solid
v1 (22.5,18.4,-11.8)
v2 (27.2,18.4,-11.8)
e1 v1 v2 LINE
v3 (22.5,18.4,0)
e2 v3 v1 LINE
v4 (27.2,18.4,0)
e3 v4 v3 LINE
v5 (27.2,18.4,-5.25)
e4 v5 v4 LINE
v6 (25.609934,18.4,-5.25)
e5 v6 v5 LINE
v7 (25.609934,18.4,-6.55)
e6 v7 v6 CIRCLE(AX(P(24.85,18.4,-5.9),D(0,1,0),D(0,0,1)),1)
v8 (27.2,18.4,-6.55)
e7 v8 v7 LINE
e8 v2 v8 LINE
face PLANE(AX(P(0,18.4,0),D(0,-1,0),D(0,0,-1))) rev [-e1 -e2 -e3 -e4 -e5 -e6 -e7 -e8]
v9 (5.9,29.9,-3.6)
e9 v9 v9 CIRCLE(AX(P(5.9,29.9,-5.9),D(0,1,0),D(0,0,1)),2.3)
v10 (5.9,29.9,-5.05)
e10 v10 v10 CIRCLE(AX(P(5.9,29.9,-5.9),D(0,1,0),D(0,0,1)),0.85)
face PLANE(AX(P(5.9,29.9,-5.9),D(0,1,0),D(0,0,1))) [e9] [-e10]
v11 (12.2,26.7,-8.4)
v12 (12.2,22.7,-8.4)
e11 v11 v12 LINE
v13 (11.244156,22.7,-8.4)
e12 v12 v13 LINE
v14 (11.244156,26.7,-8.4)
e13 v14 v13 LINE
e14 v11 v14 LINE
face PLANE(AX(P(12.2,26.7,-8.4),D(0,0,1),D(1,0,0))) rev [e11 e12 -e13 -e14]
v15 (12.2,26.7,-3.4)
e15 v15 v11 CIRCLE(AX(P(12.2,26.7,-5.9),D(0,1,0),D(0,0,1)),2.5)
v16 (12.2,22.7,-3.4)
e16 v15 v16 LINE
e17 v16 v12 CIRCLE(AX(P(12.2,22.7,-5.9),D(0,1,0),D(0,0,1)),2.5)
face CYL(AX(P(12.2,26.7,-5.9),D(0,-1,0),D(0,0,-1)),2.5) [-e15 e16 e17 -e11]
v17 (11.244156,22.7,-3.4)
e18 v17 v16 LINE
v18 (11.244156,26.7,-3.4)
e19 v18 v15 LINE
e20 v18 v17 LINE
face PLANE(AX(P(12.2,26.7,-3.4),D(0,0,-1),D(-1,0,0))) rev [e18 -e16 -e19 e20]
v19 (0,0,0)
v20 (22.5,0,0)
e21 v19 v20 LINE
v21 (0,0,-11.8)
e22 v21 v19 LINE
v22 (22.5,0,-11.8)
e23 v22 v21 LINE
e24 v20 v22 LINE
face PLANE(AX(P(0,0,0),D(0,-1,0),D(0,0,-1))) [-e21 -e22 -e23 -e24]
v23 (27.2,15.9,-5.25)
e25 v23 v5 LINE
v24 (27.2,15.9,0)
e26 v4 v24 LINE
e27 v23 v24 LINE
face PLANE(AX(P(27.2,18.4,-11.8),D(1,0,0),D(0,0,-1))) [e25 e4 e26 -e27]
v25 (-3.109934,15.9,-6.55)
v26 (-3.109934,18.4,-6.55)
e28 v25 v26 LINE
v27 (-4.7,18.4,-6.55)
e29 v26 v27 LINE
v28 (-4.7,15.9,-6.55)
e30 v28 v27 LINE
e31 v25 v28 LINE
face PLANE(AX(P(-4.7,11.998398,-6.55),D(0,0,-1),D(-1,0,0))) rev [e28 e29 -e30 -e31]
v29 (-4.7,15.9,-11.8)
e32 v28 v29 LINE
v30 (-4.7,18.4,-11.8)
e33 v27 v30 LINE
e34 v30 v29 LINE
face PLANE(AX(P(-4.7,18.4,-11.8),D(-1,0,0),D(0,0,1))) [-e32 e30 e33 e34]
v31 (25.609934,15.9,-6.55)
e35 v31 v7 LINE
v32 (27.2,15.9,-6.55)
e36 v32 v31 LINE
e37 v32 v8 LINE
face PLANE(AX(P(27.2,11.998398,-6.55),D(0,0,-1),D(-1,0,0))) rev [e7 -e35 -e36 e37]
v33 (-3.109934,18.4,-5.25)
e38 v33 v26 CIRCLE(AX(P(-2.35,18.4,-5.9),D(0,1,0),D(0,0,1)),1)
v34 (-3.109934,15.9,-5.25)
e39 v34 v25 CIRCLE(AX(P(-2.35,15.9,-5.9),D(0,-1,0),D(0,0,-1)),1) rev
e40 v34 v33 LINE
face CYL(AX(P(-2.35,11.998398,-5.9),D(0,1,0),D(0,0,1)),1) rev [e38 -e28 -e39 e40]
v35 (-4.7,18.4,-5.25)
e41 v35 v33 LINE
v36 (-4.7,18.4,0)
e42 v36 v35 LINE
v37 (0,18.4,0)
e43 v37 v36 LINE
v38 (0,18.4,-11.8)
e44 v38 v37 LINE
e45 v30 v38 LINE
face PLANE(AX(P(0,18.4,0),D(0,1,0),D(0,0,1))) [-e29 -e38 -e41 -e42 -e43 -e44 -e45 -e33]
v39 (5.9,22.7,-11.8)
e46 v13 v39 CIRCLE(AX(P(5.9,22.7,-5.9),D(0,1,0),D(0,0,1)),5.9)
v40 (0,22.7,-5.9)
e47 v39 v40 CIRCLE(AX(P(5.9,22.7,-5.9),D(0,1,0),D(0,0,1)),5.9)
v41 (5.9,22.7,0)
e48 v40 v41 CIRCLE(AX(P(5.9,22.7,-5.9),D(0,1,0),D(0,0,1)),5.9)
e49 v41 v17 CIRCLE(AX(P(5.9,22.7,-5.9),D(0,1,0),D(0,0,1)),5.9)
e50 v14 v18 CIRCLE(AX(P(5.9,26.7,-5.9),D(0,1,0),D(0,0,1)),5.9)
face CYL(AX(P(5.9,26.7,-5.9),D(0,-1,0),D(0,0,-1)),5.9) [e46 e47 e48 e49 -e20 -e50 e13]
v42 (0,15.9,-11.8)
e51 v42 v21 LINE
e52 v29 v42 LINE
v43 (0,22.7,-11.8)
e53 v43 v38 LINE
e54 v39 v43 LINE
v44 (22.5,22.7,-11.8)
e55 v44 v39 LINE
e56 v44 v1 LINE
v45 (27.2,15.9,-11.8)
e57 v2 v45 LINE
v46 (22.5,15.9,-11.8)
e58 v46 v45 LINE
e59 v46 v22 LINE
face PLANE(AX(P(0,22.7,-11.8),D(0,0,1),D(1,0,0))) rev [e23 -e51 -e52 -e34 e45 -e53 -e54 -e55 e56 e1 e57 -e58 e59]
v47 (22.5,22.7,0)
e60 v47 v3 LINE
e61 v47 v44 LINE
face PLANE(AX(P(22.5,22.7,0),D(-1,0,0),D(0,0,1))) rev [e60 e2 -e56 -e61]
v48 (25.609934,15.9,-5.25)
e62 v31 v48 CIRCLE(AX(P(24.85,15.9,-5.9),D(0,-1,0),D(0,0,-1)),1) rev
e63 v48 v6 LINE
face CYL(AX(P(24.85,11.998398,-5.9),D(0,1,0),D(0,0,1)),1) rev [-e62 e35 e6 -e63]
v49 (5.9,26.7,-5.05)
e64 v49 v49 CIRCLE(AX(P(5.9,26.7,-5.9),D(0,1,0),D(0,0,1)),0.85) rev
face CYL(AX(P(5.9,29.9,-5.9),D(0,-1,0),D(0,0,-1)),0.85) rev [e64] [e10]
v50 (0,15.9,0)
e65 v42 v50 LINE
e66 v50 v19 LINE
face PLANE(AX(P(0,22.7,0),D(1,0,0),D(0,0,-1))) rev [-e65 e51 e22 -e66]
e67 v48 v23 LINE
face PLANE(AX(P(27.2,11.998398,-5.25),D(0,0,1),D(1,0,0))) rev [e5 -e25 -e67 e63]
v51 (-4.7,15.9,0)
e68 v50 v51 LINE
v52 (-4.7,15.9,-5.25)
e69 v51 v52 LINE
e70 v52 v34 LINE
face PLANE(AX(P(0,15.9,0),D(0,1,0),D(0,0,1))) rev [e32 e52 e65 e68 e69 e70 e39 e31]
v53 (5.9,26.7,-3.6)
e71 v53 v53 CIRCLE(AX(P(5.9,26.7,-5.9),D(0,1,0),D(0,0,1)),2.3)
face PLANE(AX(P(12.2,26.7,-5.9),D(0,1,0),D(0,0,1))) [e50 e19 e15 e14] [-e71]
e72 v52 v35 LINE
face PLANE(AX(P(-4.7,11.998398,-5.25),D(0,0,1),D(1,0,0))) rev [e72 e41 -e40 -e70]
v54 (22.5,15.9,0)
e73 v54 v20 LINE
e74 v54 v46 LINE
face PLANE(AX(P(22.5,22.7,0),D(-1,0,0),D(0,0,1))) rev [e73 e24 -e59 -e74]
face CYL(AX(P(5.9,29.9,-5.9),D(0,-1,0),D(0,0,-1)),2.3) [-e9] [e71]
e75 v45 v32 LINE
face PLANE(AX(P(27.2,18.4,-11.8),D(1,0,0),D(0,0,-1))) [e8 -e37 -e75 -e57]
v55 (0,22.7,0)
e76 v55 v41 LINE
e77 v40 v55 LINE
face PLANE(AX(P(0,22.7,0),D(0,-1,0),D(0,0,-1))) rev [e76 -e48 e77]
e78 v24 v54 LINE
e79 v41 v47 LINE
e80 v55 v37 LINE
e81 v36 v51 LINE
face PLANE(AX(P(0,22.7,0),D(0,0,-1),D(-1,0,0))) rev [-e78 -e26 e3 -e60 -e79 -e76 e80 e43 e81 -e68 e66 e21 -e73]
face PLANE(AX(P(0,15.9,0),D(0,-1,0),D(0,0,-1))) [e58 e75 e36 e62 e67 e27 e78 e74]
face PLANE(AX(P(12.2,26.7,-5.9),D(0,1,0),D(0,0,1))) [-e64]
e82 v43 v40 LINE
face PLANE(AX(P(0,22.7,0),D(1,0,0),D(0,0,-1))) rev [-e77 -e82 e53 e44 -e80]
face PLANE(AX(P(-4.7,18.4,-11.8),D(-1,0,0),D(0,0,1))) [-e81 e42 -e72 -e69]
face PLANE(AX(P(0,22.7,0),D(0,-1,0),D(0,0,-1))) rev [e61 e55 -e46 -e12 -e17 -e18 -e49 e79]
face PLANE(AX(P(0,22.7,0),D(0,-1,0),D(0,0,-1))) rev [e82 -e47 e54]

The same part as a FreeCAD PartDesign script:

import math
import FreeCAD as App
import Part
import Sketcher
from FreeCAD import Vector
Q = App.Units.Quantity


def add_polygon(sketch, points):
    """Adds a closed chain of lines whose ends are joined by coincident constraints."""
    first, n = sketch.GeometryCount, len(points)
    for a, b in zip(points, points[1:] + points[:1]):
        sketch.addGeometry(Part.LineSegment(App.Vector(*a, 0), App.Vector(*b, 0)), False)
    for i in range(n):
        sketch.addConstraint(Sketcher.Constraint("Coincident", first + i, 2, first + (i + 1) % n, 1))

doc = App.newDocument("Part")
params = doc.addObject("Spreadsheet::Sheet", "Params")
for row, (alias, value) in enumerate([
    ("sketch1_width", "22.5 mm"),
    ("sketch1_height", "11.8 mm"),
    ("pad1_length", "22.7 mm"),
    ("sketch2_width", "4.7 mm"),
    ("sketch2_height", "11.8 mm"),
    ("pad2_length", "2.5 mm"),
    ("sketch3_radius", "5.9 mm"),
    ("sketch3_radius2", "2.5 mm"),
    ("pad3_length", "4 mm"),
    ("sketch4_radius", "1 mm"),
    ("sketch4_height", "1.3 mm"),
    ("pocket1_length", "2.5 mm"),
    ("sketch5_diameter", "4.6 mm"),
    ("sketch5_diameter2", "1.7 mm"),
    ("pad4_length", "3.2 mm"),
], start=1):
    params.set(f"A{row}", alias)
    params.set(f"B{row}", "=" + value)
    params.setAlias(f"B{row}", alias)

body = doc.addObject("PartDesign::Body", "Body")

# Sketch on XZ plane
sketch1 = body.newObject("Sketcher::SketchObject", "Sketch")
sketch1.AttachmentSupport = (doc.getObject("XZ_Plane"), [""])
sketch1.MapMode = "FlatFace"
add_polygon(sketch1, [(0, -12), (0, 0), (22, 0), (22, -12)])  # lines 0-3
sketch1.addConstraint(Sketcher.Constraint("Vertical", 0))
sketch1.addConstraint(Sketcher.Constraint("Horizontal", 1))
sketch1.addConstraint(Sketcher.Constraint("Vertical", 2))
sketch1.addConstraint(Sketcher.Constraint("Horizontal", 3))
sketch1.addConstraint(Sketcher.Constraint("Coincident", 0, 2, -1, 1))
sketch1.addConstraint(Sketcher.Constraint("DistanceX", 1, 1, 1, 2, Q("22.5 mm")))
sketch1.addConstraint(Sketcher.Constraint("DistanceY", 0, 1, 0, 2, Q("11.8 mm")))
sketch1.setExpression("Constraints[9]", "Params.sketch1_width")
sketch1.setExpression("Constraints[10]", "Params.sketch1_height")
pad1 = body.newObject("PartDesign::Pad", "Pad")
pad1.Profile = sketch1
pad1.setExpression("Length", "Params.pad1_length")
pad1.Reversed = True

# Sketch on XZ plane
sketch2 = body.newObject("Sketcher::SketchObject", "Sketch001")
sketch2.AttachmentSupport = (doc.getObject("XZ_Plane"), [""])
sketch2.MapMode = "FlatFace"
sketch2.AttachmentOffset = App.Placement(Vector(0, 0, -15.9), App.Rotation())
add_polygon(sketch2, [(27.2, -11.8), (27.2, 0), (22.5, 0), (22.5, -11.8)])  # lines 0-3
add_polygon(sketch2, [(0, -11.8), (0, 0), (-4.7, 0), (-4.7, -11.8)])  # lines 4-7
sketch2.addConstraint(Sketcher.Constraint("Vertical", 0))
sketch2.addConstraint(Sketcher.Constraint("Horizontal", 1))
sketch2.addConstraint(Sketcher.Constraint("Vertical", 2))
sketch2.addConstraint(Sketcher.Constraint("Horizontal", 3))
sketch2.addConstraint(Sketcher.Constraint("Vertical", 4))
sketch2.addConstraint(Sketcher.Constraint("Horizontal", 5))
sketch2.addConstraint(Sketcher.Constraint("Vertical", 6))
sketch2.addConstraint(Sketcher.Constraint("Horizontal", 7))
sketch2.addConstraint(Sketcher.Constraint("Coincident", 4, 2, -1, 1))
sketch2.addConstraint(Sketcher.Constraint("PointOnObject", 0, 2, -1))
sketch2.addConstraint(Sketcher.Constraint("Horizontal", 3, 2, 6, 2))
sketch2.addConstraint(Sketcher.Constraint("Equal", 3, 5))
sketch2.addConstraint(Sketcher.Constraint("DistanceX", 1, 2, 1, 1, Q("4.7 mm")))
sketch2.addConstraint(Sketcher.Constraint("DistanceY", 0, 1, 0, 2, Q("11.8 mm")))
sketch2.addConstraint(Sketcher.Constraint("DistanceX", -1, 1, 0, 2, Q("27.2 mm")))
sketch2.setExpression("Constraints[20]", "Params.sketch2_width")
sketch2.setExpression("Constraints[21]", "Params.sketch2_height")
pad2 = body.newObject("PartDesign::Pad", "Pad001")
pad2.Profile = sketch2
pad2.setExpression("Length", "Params.pad2_length")
pad2.Reversed = True

# Sketch on XZ plane
sketch3 = body.newObject("Sketcher::SketchObject", "Sketch002")
sketch3.AttachmentSupport = (doc.getObject("XZ_Plane"), [""])
sketch3.MapMode = "FlatFace"
sketch3.AttachmentOffset = App.Placement(Vector(0, 0, -22.7), App.Rotation())
sketch3.addGeometry(Part.LineSegment(Vector(12.2, -8.4, 0), Vector(11.2, -8.4, 0)), False)
sketch3.addGeometry(Part.ArcOfCircle(Part.Circle(Vector(5.9, -5.9, 0), Vector(0, 0, 1), 5.9), math.radians(25), math.radians(335)), False)
sketch3.addGeometry(Part.LineSegment(Vector(11.2, -3.4, 0), Vector(12.2, -3.4, 0)), False)
sketch3.addGeometry(Part.ArcOfCircle(Part.Circle(Vector(12.2, -5.9, 0), Vector(0, 0, 1), 2.5), math.radians(-90), math.radians(90)), False)
sketch3.addConstraint(Sketcher.Constraint("Coincident", 0, 2, 1, 2))
sketch3.addConstraint(Sketcher.Constraint("Coincident", 1, 1, 2, 1))
sketch3.addConstraint(Sketcher.Constraint("Tangent", 2, 2, 3, 2))
sketch3.addConstraint(Sketcher.Constraint("Tangent", 3, 1, 0, 1))
sketch3.addConstraint(Sketcher.Constraint("Horizontal", 0))
sketch3.addConstraint(Sketcher.Constraint("Horizontal", 2))
sketch3.addConstraint(Sketcher.Constraint("Horizontal", 1, 3, 3, 3))
sketch3.addConstraint(Sketcher.Constraint("Radius", 1, Q("5.9 mm")))
sketch3.addConstraint(Sketcher.Constraint("Radius", 3, Q("2.5 mm")))
sketch3.addConstraint(Sketcher.Constraint("DistanceX", -1, 1, 1, 3, Q("5.9 mm")))
sketch3.addConstraint(Sketcher.Constraint("DistanceY", 1, 3, -1, 1, Q("5.9 mm")))
sketch3.addConstraint(Sketcher.Constraint("DistanceX", -1, 1, 3, 3, Q("12.2 mm")))
sketch3.setExpression("Constraints[7]", "Params.sketch3_radius")
sketch3.setExpression("Constraints[8]", "Params.sketch3_radius2")
pad3 = body.newObject("PartDesign::Pad", "Pad002")
pad3.Profile = sketch3
pad3.setExpression("Length", "Params.pad3_length")
pad3.Reversed = True

# Sketch on XZ plane
sketch4 = body.newObject("Sketcher::SketchObject", "Sketch003")
sketch4.AttachmentSupport = (doc.getObject("XZ_Plane"), [""])
sketch4.MapMode = "FlatFace"
sketch4.AttachmentOffset = App.Placement(Vector(0, 0, -18.4), App.Rotation())
sketch4.addGeometry(Part.LineSegment(Vector(-4.7, -6.5, 0), Vector(-4.7, -5.2, 0)), False)
sketch4.addGeometry(Part.LineSegment(Vector(-4.7, -5.2, 0), Vector(-3.1, -5.2, 0)), False)
sketch4.addGeometry(Part.ArcOfCircle(Part.Circle(Vector(-2.4, -5.9, 0), Vector(0, 0, 1), 1), math.radians(-139), math.radians(139)), False)
sketch4.addGeometry(Part.LineSegment(Vector(-3.1, -6.5, 0), Vector(-4.7, -6.5, 0)), False)
sketch4.addGeometry(Part.LineSegment(Vector(27.2, -5.2, 0), Vector(27.2, -6.5, 0)), False)
sketch4.addGeometry(Part.LineSegment(Vector(27.2, -6.5, 0), Vector(25.6, -6.5, 0)), False)
sketch4.addGeometry(Part.ArcOfCircle(Part.Circle(Vector(24.9, -5.9, 0), Vector(0, 0, 1), 1), math.radians(41), math.radians(319)), False)
sketch4.addGeometry(Part.LineSegment(Vector(25.6, -5.2, 0), Vector(27.2, -5.2, 0)), False)
sketch4.addConstraint(Sketcher.Constraint("Coincident", 0, 2, 1, 1))
sketch4.addConstraint(Sketcher.Constraint("Coincident", 1, 2, 2, 2))
sketch4.addConstraint(Sketcher.Constraint("Coincident", 2, 1, 3, 1))
sketch4.addConstraint(Sketcher.Constraint("Coincident", 3, 2, 0, 1))
sketch4.addConstraint(Sketcher.Constraint("Coincident", 4, 2, 5, 1))
sketch4.addConstraint(Sketcher.Constraint("Coincident", 5, 2, 6, 2))
sketch4.addConstraint(Sketcher.Constraint("Coincident", 6, 1, 7, 1))
sketch4.addConstraint(Sketcher.Constraint("Coincident", 7, 2, 4, 1))
sketch4.addConstraint(Sketcher.Constraint("Vertical", 0))
sketch4.addConstraint(Sketcher.Constraint("Horizontal", 1))
sketch4.addConstraint(Sketcher.Constraint("Horizontal", 3))
sketch4.addConstraint(Sketcher.Constraint("Vertical", 4))
sketch4.addConstraint(Sketcher.Constraint("Horizontal", 5))
sketch4.addConstraint(Sketcher.Constraint("Horizontal", 7))
sketch4.addConstraint(Sketcher.Constraint("Equal", 2, 6))
sketch4.addConstraint(Sketcher.Constraint("Horizontal", 2, 3, 6, 3))
sketch4.addConstraint(Sketcher.Constraint("Horizontal", 3, 2, 4, 2))
sketch4.addConstraint(Sketcher.Constraint("Horizontal", 1, 2, 6, 1))
sketch4.addConstraint(Sketcher.Constraint("Vertical", 1, 2, 2, 1))
sketch4.addConstraint(Sketcher.Constraint("Equal", 3, 5))
sketch4.addConstraint(Sketcher.Constraint("Radius", 2, Q("1 mm")))
sketch4.addConstraint(Sketcher.Constraint("DistanceY", 0, 1, 0, 2, Q("1.3 mm")))
sketch4.addConstraint(Sketcher.Constraint("DistanceY", 2, 3, -1, 1, Q("5.9 mm")))
sketch4.addConstraint(Sketcher.Constraint("DistanceX", 0, 2, -1, 1, Q("4.7 mm")))
sketch4.addConstraint(Sketcher.Constraint("DistanceX", -1, 1, 4, 2, Q("27.2 mm")))
sketch4.addConstraint(Sketcher.Constraint("DistanceX", 2, 3, 6, 3, Q("27.2 mm")))
sketch4.setExpression("Constraints[20]", "Params.sketch4_radius")
sketch4.setExpression("Constraints[21]", "Params.sketch4_height")
pocket1 = body.newObject("PartDesign::Pocket", "Pocket")
pocket1.Profile = sketch4
pocket1.setExpression("Length", "Params.pocket1_length")
pocket1.Reversed = True

# Sketch on XZ plane
sketch5 = body.newObject("Sketcher::SketchObject", "Sketch004")
sketch5.AttachmentSupport = (doc.getObject("XZ_Plane"), [""])
sketch5.MapMode = "FlatFace"
sketch5.AttachmentOffset = App.Placement(Vector(0, 0, -26.7), App.Rotation())
sketch5.addGeometry(Part.Circle(Vector(5.9, -5.9, 0), Vector(0, 0, 1), 2.3), False)
sketch5.addGeometry(Part.Circle(Vector(5.9, -5.9, 0), Vector(0, 0, 1), 0.8), False)
sketch5.addConstraint(Sketcher.Constraint("Coincident", 1, 3, 0, 3))
sketch5.addConstraint(Sketcher.Constraint("Diameter", 0, Q("4.6 mm")))
sketch5.addConstraint(Sketcher.Constraint("Diameter", 1, Q("1.7 mm")))
sketch5.addConstraint(Sketcher.Constraint("DistanceX", -1, 1, 0, 3, Q("5.9 mm")))
sketch5.addConstraint(Sketcher.Constraint("DistanceY", 0, 3, -1, 1, Q("5.9 mm")))
sketch5.setExpression("Constraints[1]", "Params.sketch5_diameter")
sketch5.setExpression("Constraints[2]", "Params.sketch5_diameter2")
pad4 = body.newObject("PartDesign::Pad", "Pad003")
pad4.Profile = sketch5
pad4.setExpression("Length", "Params.pad4_length")
pad4.Reversed = True

doc.recompute()
